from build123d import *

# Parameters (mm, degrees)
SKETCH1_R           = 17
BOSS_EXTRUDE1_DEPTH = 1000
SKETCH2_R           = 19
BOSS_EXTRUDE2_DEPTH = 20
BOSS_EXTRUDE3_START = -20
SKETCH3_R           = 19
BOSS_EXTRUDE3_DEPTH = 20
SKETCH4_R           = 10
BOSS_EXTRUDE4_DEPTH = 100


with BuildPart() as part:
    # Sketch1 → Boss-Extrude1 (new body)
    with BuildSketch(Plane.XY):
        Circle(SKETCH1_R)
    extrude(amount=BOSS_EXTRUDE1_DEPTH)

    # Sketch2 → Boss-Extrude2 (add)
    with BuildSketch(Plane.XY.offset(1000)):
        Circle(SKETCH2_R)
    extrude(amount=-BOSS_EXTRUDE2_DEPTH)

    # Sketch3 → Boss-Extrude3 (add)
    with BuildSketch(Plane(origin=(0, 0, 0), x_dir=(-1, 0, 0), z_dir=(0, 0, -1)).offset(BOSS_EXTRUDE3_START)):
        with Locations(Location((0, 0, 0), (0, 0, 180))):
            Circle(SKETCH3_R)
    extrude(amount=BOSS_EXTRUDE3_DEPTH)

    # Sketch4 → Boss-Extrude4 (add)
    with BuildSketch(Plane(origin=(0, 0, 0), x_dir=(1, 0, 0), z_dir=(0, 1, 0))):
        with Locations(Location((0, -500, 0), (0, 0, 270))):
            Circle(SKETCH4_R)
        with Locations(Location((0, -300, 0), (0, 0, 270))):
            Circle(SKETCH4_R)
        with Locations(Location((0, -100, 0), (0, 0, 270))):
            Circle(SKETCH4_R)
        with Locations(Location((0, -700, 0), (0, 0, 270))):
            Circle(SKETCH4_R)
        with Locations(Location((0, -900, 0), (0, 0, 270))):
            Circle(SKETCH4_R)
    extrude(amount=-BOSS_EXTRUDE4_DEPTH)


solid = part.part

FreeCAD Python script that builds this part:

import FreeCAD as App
import Part
import Sketcher
from FreeCAD import Vector
Q = App.Units.Quantity

doc = App.newDocument("Part")
params = doc.addObject("Spreadsheet::Sheet", "Params")
for row, (alias, value) in enumerate([
    ("sketch1_diameter", "34 mm"),
    ("pad1_length", "1000 mm"),
    ("sketch2_diameter", "38 mm"),
    ("pad2_length", "20 mm"),
    ("sketch3_diameter", "38 mm"),
    ("pad3_length", "20 mm"),
    ("sketch4_diameter", "20 mm"),
    ("pad4_length", "100 mm"),
], start=1):
    params.set(f"A{row}", alias)
    params.set(f"B{row}", "=" + value)
    params.setAlias(f"B{row}", alias)

body = doc.addObject("PartDesign::Body", "Body")

# Sketch on XY plane
sketch1 = body.newObject("Sketcher::SketchObject", "Sketch")
sketch1.AttachmentSupport = (doc.getObject("XY_Plane"), [""])
sketch1.MapMode = "FlatFace"
sketch1.addGeometry(Part.Circle(Vector(0, 0, 0), Vector(0, 0, 1), 17), False)
sketch1.addConstraint([
    Sketcher.Constraint("Coincident", 0, 3, -1, 1),
    Sketcher.Constraint("Diameter", 0, Q("34 mm")),
])
sketch1.setExpression("Constraints[1]", "Params.sketch1_diameter")
pad1 = body.newObject("PartDesign::Pad", "Pad")
pad1.Profile = sketch1
pad1.setExpression("Length", "Params.pad1_length")

# Sketch on XY plane
sketch2 = body.newObject("Sketcher::SketchObject", "Sketch001")
sketch2.AttachmentSupport = (doc.getObject("XY_Plane"), [""])
sketch2.MapMode = "FlatFace"
sketch2.AttachmentOffset = App.Placement(Vector(0, 0, 1000), App.Rotation())
sketch2.addGeometry(Part.Circle(Vector(0, 0, 0), Vector(0, 0, 1), 19), False)
sketch2.addConstraint([
    Sketcher.Constraint("Coincident", 0, 3, -1, 1),
    Sketcher.Constraint("Diameter", 0, Q("38 mm")),
])
sketch2.setExpression("Constraints[1]", "Params.sketch2_diameter")
pad2 = body.newObject("PartDesign::Pad", "Pad001")
pad2.Profile = sketch2
pad2.setExpression("Length", "Params.pad2_length")
pad2.Reversed = True

# Sketch on XY plane
sketch3 = body.newObject("Sketcher::SketchObject", "Sketch002")
sketch3.AttachmentSupport = (doc.getObject("XY_Plane"), [""])
sketch3.MapMode = "FlatFace"
sketch3.AttachmentOffset = App.Placement(Vector(0, 0, 20), App.Rotation())
sketch3.addGeometry(Part.Circle(Vector(0, 0, 0), Vector(0, 0, 1), 19), False)
sketch3.addConstraint([
    Sketcher.Constraint("Coincident", 0, 3, -1, 1),
    Sketcher.Constraint("Diameter", 0, Q("38 mm")),
])
sketch3.setExpression("Constraints[1]", "Params.sketch3_diameter")
pad3 = body.newObject("PartDesign::Pad", "Pad002")
pad3.Profile = sketch3
pad3.setExpression("Length", "Params.pad3_length")
pad3.Reversed = True

# Sketch on XZ plane
sketch4 = body.newObject("Sketcher::SketchObject", "Sketch003")
sketch4.AttachmentSupport = (doc.getObject("XZ_Plane"), [""])
sketch4.MapMode = "FlatFace"
sketch4.addGeometry([
    Part.Circle(Vector(0, 500, 0), Vector(0, 0, 1), 10),  # 0
    Part.Circle(Vector(0, 300, 0), Vector(0, 0, 1), 10),  # 1
    Part.Circle(Vector(0, 100, 0), Vector(0, 0, 1), 10),  # 2
    Part.Circle(Vector(0, 700, 0), Vector(0, 0, 1), 10),  # 3
    Part.Circle(Vector(0, 900, 0), Vector(0, 0, 1), 10),  # 4
], False)
sketch4.addConstraint([
    Sketcher.Constraint("Equal", 0, 1),
    Sketcher.Constraint("Equal", 1, 2),
    Sketcher.Constraint("Equal", 2, 3),
    Sketcher.Constraint("Equal", 3, 4),
    Sketcher.Constraint("PointOnObject", 0, 3, -2),
    Sketcher.Constraint("PointOnObject", 1, 3, -2),
    Sketcher.Constraint("PointOnObject", 2, 3, -2),
    Sketcher.Constraint("PointOnObject", 3, 3, -2),
    Sketcher.Constraint("PointOnObject", 4, 3, -2),
    Sketcher.Constraint("Diameter", 0, Q("20 mm")),
    Sketcher.Constraint("DistanceY", -1, 1, 0, 3, Q("500 mm")),
    Sketcher.Constraint("DistanceY", -1, 1, 1, 3, Q("300 mm")),
    Sketcher.Constraint("DistanceY", -1, 1, 2, 3, Q("100 mm")),
    Sketcher.Constraint("DistanceY", -1, 1, 3, 3, Q("700 mm")),
    Sketcher.Constraint("DistanceY", -1, 1, 4, 3, Q("900 mm")),
])
sketch4.setExpression("Constraints[9]", "Params.sketch4_diameter")
pad4 = body.newObject("PartDesign::Pad", "Pad003")
pad4.Profile = sketch4
pad4.setExpression("Length", "Params.pad4_length")

doc.recompute()
